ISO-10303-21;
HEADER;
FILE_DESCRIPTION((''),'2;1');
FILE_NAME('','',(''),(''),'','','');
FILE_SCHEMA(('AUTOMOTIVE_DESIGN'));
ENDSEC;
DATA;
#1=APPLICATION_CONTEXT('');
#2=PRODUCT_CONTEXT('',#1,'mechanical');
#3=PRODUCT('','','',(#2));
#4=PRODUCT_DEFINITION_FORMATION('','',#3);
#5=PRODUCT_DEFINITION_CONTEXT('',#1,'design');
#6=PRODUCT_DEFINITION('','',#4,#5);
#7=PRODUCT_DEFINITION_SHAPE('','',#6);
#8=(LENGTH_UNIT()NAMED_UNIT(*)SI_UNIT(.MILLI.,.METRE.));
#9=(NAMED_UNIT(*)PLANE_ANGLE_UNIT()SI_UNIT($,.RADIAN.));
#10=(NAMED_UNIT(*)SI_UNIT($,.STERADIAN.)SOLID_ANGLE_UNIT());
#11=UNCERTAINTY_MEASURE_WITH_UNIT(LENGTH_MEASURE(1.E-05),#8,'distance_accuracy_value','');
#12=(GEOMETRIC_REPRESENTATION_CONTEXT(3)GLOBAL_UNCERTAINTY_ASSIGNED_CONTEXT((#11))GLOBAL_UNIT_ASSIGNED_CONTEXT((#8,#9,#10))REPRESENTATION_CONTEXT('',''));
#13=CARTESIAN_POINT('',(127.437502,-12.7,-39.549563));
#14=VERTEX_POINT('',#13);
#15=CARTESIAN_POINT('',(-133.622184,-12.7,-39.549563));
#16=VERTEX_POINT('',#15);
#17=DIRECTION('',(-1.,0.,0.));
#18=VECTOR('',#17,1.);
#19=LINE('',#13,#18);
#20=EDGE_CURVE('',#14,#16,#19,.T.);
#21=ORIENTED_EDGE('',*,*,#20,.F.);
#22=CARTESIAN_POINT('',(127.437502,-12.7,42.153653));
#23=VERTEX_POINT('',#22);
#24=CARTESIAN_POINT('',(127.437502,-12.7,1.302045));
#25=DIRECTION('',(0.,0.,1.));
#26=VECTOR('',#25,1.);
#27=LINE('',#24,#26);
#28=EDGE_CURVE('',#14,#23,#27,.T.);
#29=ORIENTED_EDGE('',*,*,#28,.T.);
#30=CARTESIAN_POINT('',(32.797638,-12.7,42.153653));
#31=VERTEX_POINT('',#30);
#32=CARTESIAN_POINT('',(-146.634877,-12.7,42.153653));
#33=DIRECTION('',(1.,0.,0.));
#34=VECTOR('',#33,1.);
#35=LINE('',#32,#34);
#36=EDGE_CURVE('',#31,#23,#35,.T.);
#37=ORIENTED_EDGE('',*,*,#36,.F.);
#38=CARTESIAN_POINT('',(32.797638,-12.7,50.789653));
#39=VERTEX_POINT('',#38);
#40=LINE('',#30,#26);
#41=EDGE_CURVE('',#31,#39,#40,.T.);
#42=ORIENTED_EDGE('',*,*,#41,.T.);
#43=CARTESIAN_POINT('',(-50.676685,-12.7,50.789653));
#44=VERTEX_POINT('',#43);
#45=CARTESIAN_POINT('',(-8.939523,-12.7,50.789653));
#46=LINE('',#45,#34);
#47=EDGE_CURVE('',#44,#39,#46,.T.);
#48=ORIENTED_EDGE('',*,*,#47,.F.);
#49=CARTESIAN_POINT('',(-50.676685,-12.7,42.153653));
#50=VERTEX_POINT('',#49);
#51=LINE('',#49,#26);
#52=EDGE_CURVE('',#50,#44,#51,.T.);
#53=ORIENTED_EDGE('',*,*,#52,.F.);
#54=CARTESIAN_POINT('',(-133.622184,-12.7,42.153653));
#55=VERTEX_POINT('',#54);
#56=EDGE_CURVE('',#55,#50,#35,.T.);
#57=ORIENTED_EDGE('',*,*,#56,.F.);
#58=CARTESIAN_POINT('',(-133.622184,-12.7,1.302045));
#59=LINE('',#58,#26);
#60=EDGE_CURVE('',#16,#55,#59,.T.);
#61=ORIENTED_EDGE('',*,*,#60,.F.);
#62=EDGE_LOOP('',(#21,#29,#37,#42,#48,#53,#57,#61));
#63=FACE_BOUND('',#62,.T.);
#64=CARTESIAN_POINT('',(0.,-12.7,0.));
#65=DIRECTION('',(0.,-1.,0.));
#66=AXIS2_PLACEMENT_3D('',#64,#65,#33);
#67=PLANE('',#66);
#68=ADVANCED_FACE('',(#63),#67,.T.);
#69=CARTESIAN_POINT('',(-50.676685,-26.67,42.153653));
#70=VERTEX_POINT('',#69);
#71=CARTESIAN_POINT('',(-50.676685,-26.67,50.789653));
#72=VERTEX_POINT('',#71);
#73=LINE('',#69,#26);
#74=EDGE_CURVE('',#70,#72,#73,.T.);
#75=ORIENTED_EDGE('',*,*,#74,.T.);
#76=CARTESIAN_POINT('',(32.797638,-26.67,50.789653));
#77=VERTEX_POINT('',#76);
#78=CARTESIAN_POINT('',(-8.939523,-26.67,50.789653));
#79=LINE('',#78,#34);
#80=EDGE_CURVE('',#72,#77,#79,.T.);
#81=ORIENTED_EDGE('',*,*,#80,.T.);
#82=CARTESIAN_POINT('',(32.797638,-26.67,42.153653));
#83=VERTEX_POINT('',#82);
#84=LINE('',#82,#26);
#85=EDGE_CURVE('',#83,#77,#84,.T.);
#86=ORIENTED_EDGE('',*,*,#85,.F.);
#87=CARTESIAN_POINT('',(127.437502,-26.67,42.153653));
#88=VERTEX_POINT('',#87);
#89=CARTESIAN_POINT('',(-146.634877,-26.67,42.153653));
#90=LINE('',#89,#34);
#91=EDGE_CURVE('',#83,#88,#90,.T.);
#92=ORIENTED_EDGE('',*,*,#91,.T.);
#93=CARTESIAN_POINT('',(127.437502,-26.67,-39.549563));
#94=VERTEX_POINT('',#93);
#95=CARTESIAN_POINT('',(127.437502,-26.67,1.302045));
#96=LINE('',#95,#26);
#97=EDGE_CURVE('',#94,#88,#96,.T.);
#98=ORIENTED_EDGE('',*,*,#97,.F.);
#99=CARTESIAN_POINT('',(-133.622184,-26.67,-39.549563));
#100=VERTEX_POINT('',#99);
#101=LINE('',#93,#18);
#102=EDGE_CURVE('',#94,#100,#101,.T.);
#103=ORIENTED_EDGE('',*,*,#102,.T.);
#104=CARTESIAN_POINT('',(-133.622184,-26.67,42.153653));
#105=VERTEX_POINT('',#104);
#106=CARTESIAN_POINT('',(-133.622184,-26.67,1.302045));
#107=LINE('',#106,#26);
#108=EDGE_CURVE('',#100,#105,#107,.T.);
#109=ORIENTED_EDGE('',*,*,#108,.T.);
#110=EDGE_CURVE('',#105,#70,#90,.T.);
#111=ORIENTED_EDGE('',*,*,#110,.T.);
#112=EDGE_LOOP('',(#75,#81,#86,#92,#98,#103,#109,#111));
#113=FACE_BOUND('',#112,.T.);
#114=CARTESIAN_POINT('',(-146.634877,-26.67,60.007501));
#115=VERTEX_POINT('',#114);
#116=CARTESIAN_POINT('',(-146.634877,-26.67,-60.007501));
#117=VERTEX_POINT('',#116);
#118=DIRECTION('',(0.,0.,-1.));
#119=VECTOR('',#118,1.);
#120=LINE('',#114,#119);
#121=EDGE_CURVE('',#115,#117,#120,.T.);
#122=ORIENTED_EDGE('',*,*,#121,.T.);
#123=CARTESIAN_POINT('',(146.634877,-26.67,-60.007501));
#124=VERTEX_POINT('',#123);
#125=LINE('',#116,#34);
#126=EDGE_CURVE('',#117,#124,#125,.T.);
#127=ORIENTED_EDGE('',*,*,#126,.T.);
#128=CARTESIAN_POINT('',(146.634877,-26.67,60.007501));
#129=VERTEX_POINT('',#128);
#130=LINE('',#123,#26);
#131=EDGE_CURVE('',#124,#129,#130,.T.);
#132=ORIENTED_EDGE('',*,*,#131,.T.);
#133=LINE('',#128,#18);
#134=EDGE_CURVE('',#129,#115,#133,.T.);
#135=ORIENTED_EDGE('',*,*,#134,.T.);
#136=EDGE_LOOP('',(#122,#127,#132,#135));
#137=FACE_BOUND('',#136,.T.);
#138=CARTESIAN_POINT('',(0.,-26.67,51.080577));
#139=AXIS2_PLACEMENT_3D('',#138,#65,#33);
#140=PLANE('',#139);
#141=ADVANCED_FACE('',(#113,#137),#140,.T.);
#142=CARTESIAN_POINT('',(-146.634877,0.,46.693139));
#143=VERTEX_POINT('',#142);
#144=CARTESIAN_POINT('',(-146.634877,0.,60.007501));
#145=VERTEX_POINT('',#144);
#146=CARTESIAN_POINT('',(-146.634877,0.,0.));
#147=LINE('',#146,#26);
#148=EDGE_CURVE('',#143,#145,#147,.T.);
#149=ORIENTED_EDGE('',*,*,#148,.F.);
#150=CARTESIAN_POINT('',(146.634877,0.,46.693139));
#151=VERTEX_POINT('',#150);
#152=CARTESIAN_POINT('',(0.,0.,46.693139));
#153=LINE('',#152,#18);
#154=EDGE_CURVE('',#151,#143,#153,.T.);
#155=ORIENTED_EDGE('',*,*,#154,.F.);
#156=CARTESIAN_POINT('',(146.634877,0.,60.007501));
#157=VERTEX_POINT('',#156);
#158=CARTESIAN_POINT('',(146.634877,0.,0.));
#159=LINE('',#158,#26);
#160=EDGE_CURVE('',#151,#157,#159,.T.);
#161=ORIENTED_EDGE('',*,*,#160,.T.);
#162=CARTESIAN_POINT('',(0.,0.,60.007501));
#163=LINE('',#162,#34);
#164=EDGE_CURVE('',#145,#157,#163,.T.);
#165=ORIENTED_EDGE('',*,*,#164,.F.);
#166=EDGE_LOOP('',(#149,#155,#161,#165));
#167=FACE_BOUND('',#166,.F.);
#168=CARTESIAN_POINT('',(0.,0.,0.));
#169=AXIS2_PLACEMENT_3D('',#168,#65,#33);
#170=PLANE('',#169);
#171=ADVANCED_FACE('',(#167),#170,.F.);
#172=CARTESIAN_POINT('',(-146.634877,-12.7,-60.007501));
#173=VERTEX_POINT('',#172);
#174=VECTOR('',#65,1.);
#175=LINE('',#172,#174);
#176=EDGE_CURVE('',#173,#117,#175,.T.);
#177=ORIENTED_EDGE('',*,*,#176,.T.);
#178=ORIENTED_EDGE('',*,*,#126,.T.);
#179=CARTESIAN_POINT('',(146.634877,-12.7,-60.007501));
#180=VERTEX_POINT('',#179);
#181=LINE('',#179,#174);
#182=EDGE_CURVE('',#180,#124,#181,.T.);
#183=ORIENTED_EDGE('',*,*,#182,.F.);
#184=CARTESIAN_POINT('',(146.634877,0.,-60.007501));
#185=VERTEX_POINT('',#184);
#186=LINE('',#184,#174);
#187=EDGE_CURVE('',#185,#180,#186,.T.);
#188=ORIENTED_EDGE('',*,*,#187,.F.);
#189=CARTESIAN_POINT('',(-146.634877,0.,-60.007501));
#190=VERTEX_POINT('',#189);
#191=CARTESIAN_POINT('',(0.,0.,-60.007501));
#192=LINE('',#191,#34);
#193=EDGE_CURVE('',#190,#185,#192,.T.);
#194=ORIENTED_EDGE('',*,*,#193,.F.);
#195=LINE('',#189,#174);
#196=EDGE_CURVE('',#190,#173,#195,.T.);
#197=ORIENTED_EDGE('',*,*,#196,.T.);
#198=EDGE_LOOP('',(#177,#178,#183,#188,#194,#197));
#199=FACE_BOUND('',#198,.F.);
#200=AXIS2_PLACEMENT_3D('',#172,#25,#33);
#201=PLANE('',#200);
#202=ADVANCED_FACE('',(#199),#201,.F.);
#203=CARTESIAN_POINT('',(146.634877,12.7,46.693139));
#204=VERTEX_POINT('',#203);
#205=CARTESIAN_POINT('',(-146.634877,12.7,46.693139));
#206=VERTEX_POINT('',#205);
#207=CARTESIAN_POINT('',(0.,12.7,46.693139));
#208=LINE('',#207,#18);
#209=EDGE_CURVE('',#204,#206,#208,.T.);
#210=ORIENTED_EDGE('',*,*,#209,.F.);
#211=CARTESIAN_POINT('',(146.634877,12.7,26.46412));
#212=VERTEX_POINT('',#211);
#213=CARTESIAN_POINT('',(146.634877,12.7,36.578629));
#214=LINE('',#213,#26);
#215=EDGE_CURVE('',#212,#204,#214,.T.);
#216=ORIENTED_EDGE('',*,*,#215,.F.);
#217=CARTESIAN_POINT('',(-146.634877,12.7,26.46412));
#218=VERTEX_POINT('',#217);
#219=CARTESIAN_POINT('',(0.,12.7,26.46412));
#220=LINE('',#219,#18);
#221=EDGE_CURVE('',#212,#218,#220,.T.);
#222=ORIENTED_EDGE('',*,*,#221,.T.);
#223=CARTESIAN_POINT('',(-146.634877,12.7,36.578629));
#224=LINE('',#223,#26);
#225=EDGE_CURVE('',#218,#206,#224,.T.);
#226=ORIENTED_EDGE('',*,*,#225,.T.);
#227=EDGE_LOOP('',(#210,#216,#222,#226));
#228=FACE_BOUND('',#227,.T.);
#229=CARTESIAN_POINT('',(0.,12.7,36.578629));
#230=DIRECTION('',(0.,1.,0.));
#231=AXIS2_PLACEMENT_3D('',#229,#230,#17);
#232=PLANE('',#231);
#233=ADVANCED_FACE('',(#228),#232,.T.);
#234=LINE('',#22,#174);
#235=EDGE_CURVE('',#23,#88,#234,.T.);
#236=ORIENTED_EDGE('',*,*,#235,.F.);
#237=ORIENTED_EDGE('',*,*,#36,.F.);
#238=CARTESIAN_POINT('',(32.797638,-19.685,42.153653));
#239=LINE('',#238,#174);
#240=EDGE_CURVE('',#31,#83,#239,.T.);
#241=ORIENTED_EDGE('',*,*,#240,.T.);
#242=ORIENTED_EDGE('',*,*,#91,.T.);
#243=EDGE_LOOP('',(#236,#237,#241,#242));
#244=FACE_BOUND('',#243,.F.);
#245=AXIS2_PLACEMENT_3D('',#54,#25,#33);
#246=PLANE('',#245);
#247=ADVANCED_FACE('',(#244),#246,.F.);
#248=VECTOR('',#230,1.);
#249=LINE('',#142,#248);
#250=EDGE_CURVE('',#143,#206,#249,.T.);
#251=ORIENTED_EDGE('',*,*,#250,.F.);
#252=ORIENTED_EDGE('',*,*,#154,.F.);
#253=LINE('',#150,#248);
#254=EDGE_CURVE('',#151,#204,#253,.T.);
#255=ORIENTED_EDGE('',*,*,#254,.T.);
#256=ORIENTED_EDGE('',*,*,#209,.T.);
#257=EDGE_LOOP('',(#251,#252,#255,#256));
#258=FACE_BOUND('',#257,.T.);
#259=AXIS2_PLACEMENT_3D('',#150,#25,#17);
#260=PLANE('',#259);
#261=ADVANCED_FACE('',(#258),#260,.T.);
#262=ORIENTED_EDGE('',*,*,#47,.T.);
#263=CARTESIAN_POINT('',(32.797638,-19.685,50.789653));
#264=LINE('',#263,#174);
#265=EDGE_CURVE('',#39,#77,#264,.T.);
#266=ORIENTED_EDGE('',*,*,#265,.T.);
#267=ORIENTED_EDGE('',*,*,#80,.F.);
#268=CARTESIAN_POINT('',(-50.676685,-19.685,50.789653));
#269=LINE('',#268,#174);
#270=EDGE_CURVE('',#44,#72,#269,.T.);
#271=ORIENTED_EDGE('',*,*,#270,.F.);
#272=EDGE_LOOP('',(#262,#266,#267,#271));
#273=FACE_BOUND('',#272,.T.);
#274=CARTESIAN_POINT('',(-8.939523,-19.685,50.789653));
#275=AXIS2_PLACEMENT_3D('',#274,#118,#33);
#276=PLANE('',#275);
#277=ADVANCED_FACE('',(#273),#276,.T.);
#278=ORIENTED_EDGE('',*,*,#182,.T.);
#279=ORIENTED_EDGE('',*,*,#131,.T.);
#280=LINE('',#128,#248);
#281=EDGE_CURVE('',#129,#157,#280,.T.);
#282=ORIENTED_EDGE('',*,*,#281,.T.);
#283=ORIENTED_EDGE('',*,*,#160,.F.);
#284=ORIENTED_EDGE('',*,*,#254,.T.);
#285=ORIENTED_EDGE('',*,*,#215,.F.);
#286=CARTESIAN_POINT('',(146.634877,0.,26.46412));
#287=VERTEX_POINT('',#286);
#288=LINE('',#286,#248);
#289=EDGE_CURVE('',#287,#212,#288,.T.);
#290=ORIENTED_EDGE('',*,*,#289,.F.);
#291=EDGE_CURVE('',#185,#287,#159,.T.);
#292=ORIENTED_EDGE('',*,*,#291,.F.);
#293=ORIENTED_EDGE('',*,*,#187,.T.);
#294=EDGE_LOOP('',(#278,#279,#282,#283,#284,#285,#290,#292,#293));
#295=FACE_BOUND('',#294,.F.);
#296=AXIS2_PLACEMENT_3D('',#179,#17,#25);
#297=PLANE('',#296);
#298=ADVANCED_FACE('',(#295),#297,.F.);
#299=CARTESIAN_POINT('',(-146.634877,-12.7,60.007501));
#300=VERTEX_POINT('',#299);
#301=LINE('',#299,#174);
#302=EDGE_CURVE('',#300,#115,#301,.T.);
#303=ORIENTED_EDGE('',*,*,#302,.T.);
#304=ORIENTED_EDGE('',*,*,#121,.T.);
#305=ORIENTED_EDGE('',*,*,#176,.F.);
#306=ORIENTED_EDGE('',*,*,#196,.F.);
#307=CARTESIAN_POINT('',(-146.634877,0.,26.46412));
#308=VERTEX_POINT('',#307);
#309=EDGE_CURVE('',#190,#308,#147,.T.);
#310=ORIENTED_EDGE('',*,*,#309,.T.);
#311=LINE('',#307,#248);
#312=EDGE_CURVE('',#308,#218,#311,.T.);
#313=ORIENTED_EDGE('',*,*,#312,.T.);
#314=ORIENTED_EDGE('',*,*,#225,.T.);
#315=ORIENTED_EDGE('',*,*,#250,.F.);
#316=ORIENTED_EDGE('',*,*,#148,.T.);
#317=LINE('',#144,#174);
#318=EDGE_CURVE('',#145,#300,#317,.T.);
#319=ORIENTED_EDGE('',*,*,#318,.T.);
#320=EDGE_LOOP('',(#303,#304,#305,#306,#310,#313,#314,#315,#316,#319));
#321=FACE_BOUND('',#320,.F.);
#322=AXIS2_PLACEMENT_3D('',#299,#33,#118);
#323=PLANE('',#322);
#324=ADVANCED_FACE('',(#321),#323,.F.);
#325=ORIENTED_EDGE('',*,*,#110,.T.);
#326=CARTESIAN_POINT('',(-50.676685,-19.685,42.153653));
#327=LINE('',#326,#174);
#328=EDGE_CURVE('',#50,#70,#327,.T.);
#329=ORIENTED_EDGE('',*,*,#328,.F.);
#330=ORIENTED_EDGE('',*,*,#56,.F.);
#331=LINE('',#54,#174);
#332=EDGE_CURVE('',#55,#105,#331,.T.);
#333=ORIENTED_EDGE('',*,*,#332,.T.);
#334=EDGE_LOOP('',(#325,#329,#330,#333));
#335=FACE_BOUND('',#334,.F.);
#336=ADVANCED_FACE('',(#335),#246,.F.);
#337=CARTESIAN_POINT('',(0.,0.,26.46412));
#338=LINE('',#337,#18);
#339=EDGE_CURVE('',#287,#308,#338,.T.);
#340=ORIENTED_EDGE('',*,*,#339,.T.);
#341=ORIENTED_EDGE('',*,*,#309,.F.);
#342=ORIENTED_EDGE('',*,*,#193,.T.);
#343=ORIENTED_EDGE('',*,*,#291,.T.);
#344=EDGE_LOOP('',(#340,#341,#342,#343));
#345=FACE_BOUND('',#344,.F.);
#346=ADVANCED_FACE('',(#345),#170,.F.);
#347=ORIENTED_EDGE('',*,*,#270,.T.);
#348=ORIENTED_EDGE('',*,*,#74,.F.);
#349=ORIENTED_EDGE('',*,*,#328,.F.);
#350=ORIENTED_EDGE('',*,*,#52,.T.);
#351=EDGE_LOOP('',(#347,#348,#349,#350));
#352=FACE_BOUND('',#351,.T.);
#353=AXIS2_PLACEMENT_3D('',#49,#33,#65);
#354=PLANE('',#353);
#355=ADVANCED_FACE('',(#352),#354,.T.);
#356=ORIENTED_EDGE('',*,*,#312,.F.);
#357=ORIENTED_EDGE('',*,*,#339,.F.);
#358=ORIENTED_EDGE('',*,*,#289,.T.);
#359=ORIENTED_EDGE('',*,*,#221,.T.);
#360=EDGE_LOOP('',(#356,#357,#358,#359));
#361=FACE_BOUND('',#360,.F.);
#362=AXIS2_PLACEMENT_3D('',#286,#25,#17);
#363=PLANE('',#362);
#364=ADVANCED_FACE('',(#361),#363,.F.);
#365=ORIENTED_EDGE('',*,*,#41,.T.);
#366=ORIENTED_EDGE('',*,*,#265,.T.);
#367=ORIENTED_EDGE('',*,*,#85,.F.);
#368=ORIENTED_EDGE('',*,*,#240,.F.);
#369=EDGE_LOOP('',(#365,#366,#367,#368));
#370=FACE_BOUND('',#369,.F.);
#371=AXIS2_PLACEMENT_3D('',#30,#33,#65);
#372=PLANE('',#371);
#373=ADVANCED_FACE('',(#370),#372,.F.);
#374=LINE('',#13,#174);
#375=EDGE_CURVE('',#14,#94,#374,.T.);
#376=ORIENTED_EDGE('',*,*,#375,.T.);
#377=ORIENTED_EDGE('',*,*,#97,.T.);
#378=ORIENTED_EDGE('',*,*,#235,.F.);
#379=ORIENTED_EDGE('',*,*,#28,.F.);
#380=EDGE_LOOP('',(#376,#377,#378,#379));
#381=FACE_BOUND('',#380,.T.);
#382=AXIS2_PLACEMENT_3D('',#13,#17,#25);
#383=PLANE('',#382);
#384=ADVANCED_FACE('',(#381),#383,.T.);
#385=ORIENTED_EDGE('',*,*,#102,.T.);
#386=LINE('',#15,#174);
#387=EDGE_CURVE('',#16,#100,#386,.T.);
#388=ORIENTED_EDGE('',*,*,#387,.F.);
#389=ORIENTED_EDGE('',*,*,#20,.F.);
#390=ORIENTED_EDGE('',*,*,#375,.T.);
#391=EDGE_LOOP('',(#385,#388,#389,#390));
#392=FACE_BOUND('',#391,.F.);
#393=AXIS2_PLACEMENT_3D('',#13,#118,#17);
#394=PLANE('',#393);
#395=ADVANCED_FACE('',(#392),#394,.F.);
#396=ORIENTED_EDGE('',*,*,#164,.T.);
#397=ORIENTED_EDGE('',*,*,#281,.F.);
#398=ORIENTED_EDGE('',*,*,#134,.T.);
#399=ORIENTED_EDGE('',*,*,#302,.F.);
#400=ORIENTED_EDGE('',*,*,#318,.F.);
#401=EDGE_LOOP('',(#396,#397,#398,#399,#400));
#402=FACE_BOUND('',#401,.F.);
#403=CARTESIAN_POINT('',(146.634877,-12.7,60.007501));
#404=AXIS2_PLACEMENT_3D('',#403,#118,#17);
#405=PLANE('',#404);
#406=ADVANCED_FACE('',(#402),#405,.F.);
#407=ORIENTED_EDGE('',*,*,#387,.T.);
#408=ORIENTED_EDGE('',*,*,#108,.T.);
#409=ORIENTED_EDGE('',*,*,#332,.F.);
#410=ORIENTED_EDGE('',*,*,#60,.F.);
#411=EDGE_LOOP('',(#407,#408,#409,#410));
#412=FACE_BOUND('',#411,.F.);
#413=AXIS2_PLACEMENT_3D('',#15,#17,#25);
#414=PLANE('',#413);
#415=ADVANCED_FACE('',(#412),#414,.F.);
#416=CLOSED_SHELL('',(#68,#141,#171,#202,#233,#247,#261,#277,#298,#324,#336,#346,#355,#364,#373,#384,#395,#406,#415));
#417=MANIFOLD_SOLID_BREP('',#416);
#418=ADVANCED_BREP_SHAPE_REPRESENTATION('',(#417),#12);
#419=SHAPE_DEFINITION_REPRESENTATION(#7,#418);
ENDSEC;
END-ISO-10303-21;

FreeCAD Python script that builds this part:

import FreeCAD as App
import Part
import Sketcher

V = App.Vector
Q = App.Units.Quantity


def add_polygon(sketch, points):
    """Adds a closed chain of lines whose ends are joined by coincident constraints."""
    first, n = sketch.GeometryCount, len(points)
    for a, b in zip(points, points[1:] + points[:1]):
        sketch.addGeometry(Part.LineSegment(App.Vector(*a, 0), App.Vector(*b, 0)), False)
    for i in range(n):
        sketch.addConstraint(Sketcher.Constraint("Coincident", first + i, 2, first + (i + 1) % n, 1))

doc = App.newDocument("Part")
body = doc.addObject("PartDesign::Body", "Body")

# Sketch on XZ plane
sketch1 = body.newObject("Sketcher::SketchObject", "Sketch")
sketch1.AttachmentSupport = (doc.getObject("XZ_Plane"), [""])
sketch1.MapMode = "FlatFace"
add_polygon(sketch1, [(-147, 60), (-147, -60), (147, -60), (147, 60)])  # lines 0-3
sketch1.addConstraint(Sketcher.Constraint("Vertical", 0))
sketch1.addConstraint(Sketcher.Constraint("Horizontal", 1))
sketch1.addConstraint(Sketcher.Constraint("Vertical", 2))
sketch1.addConstraint(Sketcher.Constraint("Horizontal", 3))
sketch1.addConstraint(Sketcher.Constraint("Symmetric", 0, 2, 2, 2, -1, 1))
sketch1.addConstraint(Sketcher.Constraint("DistanceY", 0, 2, 0, 1, Q("4.7250001 in")))
sketch1.addConstraint(Sketcher.Constraint("DistanceX", 1, 1, 1, 2, 293.269753))
pad1 = body.newObject("PartDesign::Pad", "Pad")
pad1.Profile = sketch1
pad1.Length = Q("0.5 in")

# Sketch on XZ plane
sketch2 = body.newObject("Sketcher::SketchObject", "Sketch001")
sketch2.AttachmentSupport = (doc.getObject("XZ_Plane"), [""])
sketch2.MapMode = "FlatFace"
sketch2.AttachmentOffset = App.Placement(V(0, 0, 0.5 * 25.4), App.Rotation())
add_polygon(sketch2, [(147, 60), (-147, 60), (-147, -60), (147, -60)])  # lines 0-3
add_polygon(sketch2, [(-134, -40), (-134, 42), (127, 42), (127, -40)])  # lines 4-7
sketch2.addConstraint(Sketcher.Constraint("Horizontal", 0))
sketch2.addConstraint(Sketcher.Constraint("Vertical", 1))
sketch2.addConstraint(Sketcher.Constraint("Horizontal", 2))
sketch2.addConstraint(Sketcher.Constraint("Vertical", 3))
sketch2.addConstraint(Sketcher.Constraint("Vertical", 4))
sketch2.addConstraint(Sketcher.Constraint("Horizontal", 5))
sketch2.addConstraint(Sketcher.Constraint("Vertical", 6))
sketch2.addConstraint(Sketcher.Constraint("Horizontal", 7))
sketch2.addConstraint(Sketcher.Constraint("Symmetric", 0, 2, 2, 2, -1, 1))
sketch2.addConstraint(Sketcher.Constraint("DistanceY", 1, 2, 1, 1, Q("4.7250001 in")))
sketch2.addConstraint(Sketcher.Constraint("DistanceX", 0, 2, 0, 1, 293.269753))
sketch2.addConstraint(Sketcher.Constraint("DistanceX", 5, 1, 5, 2, 261.059687))
sketch2.addConstraint(Sketcher.Constraint("DistanceY", 4, 1, 4, 2, 81.703216))
sketch2.addConstraint(Sketcher.Constraint("DistanceY", 4, 2, 0, 2, 17.853849))
sketch2.addConstraint(Sketcher.Constraint("DistanceX", 4, 2, 3, 2, 280.257061))
pad2 = body.newObject("PartDesign::Pad", "Pad001")
pad2.Profile = sketch2
pad2.Length = Q("0.55 in")

# Sketch on XZ plane
sketch3 = body.newObject("Sketcher::SketchObject", "Sketch002")
sketch3.AttachmentSupport = (doc.getObject("XZ_Plane"), [""])
sketch3.MapMode = "FlatFace"
add_polygon(sketch3, [(147, 47), (147, 26), (-147, 26), (-147, 47)])  # lines 0-3
sketch3.addConstraint(Sketcher.Constraint("Vertical", 0))
sketch3.addConstraint(Sketcher.Constraint("Horizontal", 1))
sketch3.addConstraint(Sketcher.Constraint("Vertical", 2))
sketch3.addConstraint(Sketcher.Constraint("Horizontal", 3))
sketch3.addConstraint(Sketcher.Constraint("DistanceY", 0, 2, 0, 1, 20.229019))
sketch3.addConstraint(Sketcher.Constraint("DistanceX", 1, 2, 1, 1, 293.269753))
sketch3.addConstraint(Sketcher.Constraint("DistanceY", -1, 1, 0, 2, 26.46412))
sketch3.addConstraint(Sketcher.Constraint("DistanceX", -1, 1, 0, 2, 146.634877))
pad3 = body.newObject("PartDesign::Pad", "Pad002")
pad3.Profile = sketch3
pad3.Length = Q("0.5 in")
pad3.Reversed = True

# Sketch on XY plane
sketch4 = body.newObject("Sketcher::SketchObject", "Sketch003")
sketch4.AttachmentSupport = (doc.getObject("XY_Plane"), [""])
sketch4.MapMode = "FlatFace"
sketch4.AttachmentOffset = App.Placement(V(0, 0, 42.153653), App.Rotation())
add_polygon(sketch4, [(-51, -27), (-51, -13), (33, -13), (33, -27)])  # lines 0-3
sketch4.addConstraint(Sketcher.Constraint("Vertical", 0))
sketch4.addConstraint(Sketcher.Constraint("Horizontal", 1))
sketch4.addConstraint(Sketcher.Constraint("Vertical", 2))
sketch4.addConstraint(Sketcher.Constraint("Horizontal", 3))
sketch4.addConstraint(Sketcher.Constraint("DistanceY", 0, 1, 0, 2, Q("0.55 in")))
sketch4.addConstraint(Sketcher.Constraint("DistanceY", 0, 2, -1, 1, Q("0.5 in")))
sketch4.addConstraint(Sketcher.Constraint("DistanceX", 1, 1, 1, 2, 83.474323))
sketch4.addConstraint(Sketcher.Constraint("DistanceX", -1, 1, 1, 2, 32.797638))
pocket1 = body.newObject("PartDesign::Pocket", "Pocket")
pocket1.Profile = sketch4
pocket1.Length = Q("0.34 in")
pocket1.Reversed = True

doc.recompute()
